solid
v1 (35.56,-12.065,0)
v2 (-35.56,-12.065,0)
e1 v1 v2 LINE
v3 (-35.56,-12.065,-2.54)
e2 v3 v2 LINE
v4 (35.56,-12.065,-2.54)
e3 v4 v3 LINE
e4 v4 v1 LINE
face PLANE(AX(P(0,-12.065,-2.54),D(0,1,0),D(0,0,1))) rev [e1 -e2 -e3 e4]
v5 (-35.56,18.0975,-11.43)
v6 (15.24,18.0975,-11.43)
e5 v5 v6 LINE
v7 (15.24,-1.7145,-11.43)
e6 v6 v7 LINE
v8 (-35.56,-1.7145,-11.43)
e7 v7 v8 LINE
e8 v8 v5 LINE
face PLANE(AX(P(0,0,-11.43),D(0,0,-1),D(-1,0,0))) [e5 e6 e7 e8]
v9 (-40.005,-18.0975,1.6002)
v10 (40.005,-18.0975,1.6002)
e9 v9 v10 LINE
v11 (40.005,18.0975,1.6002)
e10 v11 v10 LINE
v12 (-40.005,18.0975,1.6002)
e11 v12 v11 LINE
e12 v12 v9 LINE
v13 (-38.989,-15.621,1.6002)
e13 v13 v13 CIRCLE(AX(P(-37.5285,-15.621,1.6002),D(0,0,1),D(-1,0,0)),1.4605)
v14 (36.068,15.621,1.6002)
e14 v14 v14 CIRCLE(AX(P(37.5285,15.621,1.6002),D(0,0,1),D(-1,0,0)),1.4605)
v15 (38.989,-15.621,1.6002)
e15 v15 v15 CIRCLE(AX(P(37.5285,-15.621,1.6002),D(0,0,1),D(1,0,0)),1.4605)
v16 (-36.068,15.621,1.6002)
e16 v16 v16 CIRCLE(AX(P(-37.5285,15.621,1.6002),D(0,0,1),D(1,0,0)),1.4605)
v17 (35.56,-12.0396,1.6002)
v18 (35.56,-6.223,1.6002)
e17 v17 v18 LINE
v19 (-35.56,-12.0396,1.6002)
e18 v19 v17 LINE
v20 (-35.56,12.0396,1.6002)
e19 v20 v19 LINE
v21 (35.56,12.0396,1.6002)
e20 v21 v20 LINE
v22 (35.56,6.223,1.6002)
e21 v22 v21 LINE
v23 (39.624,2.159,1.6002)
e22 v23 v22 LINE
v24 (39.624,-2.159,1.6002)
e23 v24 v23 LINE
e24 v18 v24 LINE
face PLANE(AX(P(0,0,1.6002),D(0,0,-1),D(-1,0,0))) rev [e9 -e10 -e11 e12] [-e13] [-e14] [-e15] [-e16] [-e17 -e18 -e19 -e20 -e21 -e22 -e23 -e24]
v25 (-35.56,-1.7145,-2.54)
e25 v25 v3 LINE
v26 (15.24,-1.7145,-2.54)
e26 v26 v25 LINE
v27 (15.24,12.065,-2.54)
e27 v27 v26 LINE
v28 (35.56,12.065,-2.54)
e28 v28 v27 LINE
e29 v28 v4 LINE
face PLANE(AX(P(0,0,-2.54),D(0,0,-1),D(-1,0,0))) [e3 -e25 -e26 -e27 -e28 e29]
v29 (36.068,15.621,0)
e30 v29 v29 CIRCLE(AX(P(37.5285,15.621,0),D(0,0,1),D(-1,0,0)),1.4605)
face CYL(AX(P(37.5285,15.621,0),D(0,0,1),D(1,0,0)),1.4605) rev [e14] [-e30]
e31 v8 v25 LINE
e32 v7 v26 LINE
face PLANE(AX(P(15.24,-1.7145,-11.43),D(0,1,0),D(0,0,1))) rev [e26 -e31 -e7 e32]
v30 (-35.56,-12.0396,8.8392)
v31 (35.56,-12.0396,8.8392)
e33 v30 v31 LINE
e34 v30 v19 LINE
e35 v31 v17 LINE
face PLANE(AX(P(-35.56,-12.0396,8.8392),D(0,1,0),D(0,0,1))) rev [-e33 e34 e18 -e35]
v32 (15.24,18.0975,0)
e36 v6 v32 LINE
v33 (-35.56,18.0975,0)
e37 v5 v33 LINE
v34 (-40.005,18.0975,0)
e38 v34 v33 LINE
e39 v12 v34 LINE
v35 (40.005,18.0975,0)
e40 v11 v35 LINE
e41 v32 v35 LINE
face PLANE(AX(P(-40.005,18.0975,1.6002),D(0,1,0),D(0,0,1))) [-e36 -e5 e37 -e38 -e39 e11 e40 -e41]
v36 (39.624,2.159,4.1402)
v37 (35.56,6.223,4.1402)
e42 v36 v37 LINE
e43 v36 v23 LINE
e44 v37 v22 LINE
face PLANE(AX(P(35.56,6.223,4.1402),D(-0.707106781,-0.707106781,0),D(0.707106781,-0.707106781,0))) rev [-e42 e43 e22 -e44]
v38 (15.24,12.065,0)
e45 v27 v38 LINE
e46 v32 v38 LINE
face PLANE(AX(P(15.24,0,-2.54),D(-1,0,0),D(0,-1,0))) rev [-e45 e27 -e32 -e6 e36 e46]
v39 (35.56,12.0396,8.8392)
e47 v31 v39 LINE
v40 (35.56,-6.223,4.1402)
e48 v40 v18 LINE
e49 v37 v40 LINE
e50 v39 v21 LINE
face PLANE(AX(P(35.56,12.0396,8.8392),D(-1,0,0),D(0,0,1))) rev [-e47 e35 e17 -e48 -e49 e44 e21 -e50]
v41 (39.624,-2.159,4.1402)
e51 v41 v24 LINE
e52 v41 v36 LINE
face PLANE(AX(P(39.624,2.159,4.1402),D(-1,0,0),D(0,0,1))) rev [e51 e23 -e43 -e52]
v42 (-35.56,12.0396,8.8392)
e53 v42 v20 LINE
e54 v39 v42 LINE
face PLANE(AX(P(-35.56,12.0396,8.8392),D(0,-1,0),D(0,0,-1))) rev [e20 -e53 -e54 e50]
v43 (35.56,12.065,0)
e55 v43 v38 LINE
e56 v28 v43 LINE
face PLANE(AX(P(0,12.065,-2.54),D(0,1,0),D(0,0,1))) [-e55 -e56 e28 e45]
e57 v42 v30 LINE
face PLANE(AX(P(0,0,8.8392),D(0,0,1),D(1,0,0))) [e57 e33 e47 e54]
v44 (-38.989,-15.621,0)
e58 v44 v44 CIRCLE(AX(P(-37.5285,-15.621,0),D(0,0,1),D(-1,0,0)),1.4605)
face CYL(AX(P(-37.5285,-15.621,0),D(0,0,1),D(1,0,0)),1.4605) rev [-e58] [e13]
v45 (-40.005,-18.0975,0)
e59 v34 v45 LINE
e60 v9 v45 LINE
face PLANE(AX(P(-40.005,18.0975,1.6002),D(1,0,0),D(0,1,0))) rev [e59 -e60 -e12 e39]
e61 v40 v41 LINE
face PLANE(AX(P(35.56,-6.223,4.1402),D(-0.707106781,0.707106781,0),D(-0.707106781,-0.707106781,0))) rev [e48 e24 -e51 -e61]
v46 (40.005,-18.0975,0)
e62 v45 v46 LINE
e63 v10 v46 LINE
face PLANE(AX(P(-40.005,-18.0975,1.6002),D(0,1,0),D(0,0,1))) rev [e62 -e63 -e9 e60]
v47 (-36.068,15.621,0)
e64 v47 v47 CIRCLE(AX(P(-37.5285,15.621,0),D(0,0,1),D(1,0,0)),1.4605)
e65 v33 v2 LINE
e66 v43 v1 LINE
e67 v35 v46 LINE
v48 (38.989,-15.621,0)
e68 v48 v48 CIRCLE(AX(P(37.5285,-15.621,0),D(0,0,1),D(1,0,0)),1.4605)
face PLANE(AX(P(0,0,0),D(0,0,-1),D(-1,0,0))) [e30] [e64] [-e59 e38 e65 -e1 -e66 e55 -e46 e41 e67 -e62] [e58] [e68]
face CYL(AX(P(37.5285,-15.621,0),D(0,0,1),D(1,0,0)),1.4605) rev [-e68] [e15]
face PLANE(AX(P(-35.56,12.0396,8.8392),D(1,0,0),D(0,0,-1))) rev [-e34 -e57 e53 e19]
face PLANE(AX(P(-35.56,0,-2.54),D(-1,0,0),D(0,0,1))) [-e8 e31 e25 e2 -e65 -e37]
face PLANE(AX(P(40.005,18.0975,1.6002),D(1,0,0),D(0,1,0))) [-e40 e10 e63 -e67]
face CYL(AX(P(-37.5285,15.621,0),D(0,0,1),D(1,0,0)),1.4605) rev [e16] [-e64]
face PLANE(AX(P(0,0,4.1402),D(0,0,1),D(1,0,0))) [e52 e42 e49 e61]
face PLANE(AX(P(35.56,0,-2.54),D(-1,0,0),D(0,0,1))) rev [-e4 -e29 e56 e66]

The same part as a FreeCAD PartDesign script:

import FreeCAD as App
import Part
import Sketcher

V = App.Vector
Q = App.Units.Quantity


def add_polygon(sketch, points):
    """Adds a closed chain of lines whose ends are joined by coincident constraints."""
    first, n = sketch.GeometryCount, len(points)
    for a, b in zip(points, points[1:] + points[:1]):
        sketch.addGeometry(Part.LineSegment(App.Vector(*a, 0), App.Vector(*b, 0)), False)
    for i in range(n):
        sketch.addConstraint(Sketcher.Constraint("Coincident", first + i, 2, first + (i + 1) % n, 1))

doc = App.newDocument("Part")
body = doc.addObject("PartDesign::Body", "Body")

sketch1 = body.newObject("Sketcher::SketchObject", "Sketch")
sketch1.AttachmentSupport = (doc.getObject("XY_Plane"), [""])
sketch1.MapMode = "FlatFace"
add_polygon(sketch1, [(-40, 18), (-40, -18), (40, -18), (40, 18)])
sketch1.addConstraint(Sketcher.Constraint("Vertical", 0))
sketch1.addConstraint(Sketcher.Constraint("Horizontal", 1))
sketch1.addConstraint(Sketcher.Constraint("Vertical", 2))
sketch1.addConstraint(Sketcher.Constraint("Horizontal", 3))
sketch1.addConstraint(Sketcher.Constraint("Symmetric", 0, 2, 2, 2, -1, 1))
sketch1.addConstraint(Sketcher.Constraint("DistanceX", 1, 1, 1, 2, Q("3.15 in")))
sketch1.addConstraint(Sketcher.Constraint("DistanceY", 0, 2, 0, 1, Q("1.425 in")))
pad1 = body.newObject("PartDesign::Pad", "Pad")
pad1.Profile = sketch1
pad1.Length = Q("0.063 in")

sketch2 = body.newObject("Sketcher::SketchObject", "Sketch001")
sketch2.AttachmentSupport = (doc.getObject("XY_Plane"), [""])
sketch2.MapMode = "FlatFace"
sketch2.AttachmentOffset = App.Placement(V(0, 0, 0.063 * 25.4), App.Rotation())
add_polygon(sketch2, [(-36, 12), (-36, -12), (36, -12), (36, 12)])
sketch2.addConstraint(Sketcher.Constraint("Vertical", 0))
sketch2.addConstraint(Sketcher.Constraint("Horizontal", 1))
sketch2.addConstraint(Sketcher.Constraint("Vertical", 2))
sketch2.addConstraint(Sketcher.Constraint("Horizontal", 3))
sketch2.addConstraint(Sketcher.Constraint("Symmetric", 0, 2, 2, 2, -1, 1))
sketch2.addConstraint(Sketcher.Constraint("DistanceX", 1, 1, 1, 2, Q("2.8 in")))
sketch2.addConstraint(Sketcher.Constraint("DistanceY", 0, 2, 0, 1, Q("0.948 in")))
pad2 = body.newObject("PartDesign::Pad", "Pad001")
pad2.Profile = sketch2
pad2.Length = Q("0.285 in")

sketch3 = body.newObject("Sketcher::SketchObject", "Sketch002")
sketch3.AttachmentSupport = (doc.getObject("XY_Plane"), [""])
sketch3.MapMode = "FlatFace"
sketch3.AttachmentOffset = App.Placement(V(0, 0, 0.063 * 25.4), App.Rotation())
sketch3.addGeometry(Part.Circle(V(-37.5, 15.6, 0), V(0, 0, 1), 1.5), False)
sketch3.addGeometry(Part.Circle(V(37.5, 15.6, 0), V(0, 0, 1), 1.5), False)
sketch3.addGeometry(Part.Circle(V(37.5, -15.6, 0), V(0, 0, 1), 1.5), False)
sketch3.addGeometry(Part.Circle(V(-37.5, -15.6, 0), V(0, 0, 1), 1.5), False)
sketch3.addConstraint(Sketcher.Constraint("Equal", 0, 1))
sketch3.addConstraint(Sketcher.Constraint("Equal", 1, 2))
sketch3.addConstraint(Sketcher.Constraint("Equal", 2, 3))
sketch3.addConstraint(Sketcher.Constraint("Symmetric", 0, 3, 2, 3, -1, 1))
sketch3.addConstraint(Sketcher.Constraint("Symmetric", 1, 3, 3, 3, -1, 1))
sketch3.addConstraint(Sketcher.Constraint("Symmetric", 0, 3, 1, 3, -2))
sketch3.addConstraint(Sketcher.Constraint("Diameter", 0, Q("0.115 in")))
sketch3.addConstraint(Sketcher.Constraint("DistanceY", 2, 3, 1, 3, Q("1.23 in")))
sketch3.addConstraint(Sketcher.Constraint("DistanceX", 0, 3, 1, 3, Q("2.955 in")))
pocket1 = body.newObject("PartDesign::Pocket", "Pocket")
pocket1.Profile = sketch3
pocket1.Length = Q("0.063 in")

sketch4 = body.newObject("Sketcher::SketchObject", "Sketch003")
sketch4.AttachmentSupport = (doc.getObject("XY_Plane"), [""])
sketch4.MapMode = "FlatFace"
sketch4.AttachmentOffset = App.Placement(V(0, 0, 0.063 * 25.4), App.Rotation())
add_polygon(sketch4, [(39.6, 2.2), (35.6, 6.2), (35.6, -6.2), (39.6, -2.2)])
sketch4.addConstraint(Sketcher.Constraint("Vertical", 1))
sketch4.addConstraint(Sketcher.Constraint("Vertical", 3))
sketch4.addConstraint(Sketcher.Constraint("Perpendicular", 0, 2))
sketch4.addConstraint(Sketcher.Constraint("Equal", 0, 2))
sketch4.addConstraint(Sketcher.Constraint("DistanceY", 1, 2, 1, 1, Q("0.49 in")))
sketch4.addConstraint(Sketcher.Constraint("DistanceY", 3, 1, 3, 2, Q("0.17 in")))
sketch4.addConstraint(Sketcher.Constraint("DistanceX", -1, 1, 0, 2, Q("1.4 in")))
sketch4.addConstraint(Sketcher.Constraint("DistanceY", -1, 1, 0, 2, Q("0.245 in")))
pad3 = body.newObject("PartDesign::Pad", "Pad002")
pad3.Profile = sketch4
pad3.Length = Q("0.1 in")

sketch5 = body.newObject("Sketcher::SketchObject", "Sketch004")
sketch5.AttachmentSupport = (doc.getObject("XY_Plane"), [""])
sketch5.MapMode = "FlatFace"
add_polygon(sketch5, [(15, 18), (15, 12), (36, 12), (36, -12), (-36, -12), (-36, 18)])
sketch5.addConstraint(Sketcher.Constraint("Vertical", 0))
sketch5.addConstraint(Sketcher.Constraint("Horizontal", 1))
sketch5.addConstraint(Sketcher.Constraint("Vertical", 2))
sketch5.addConstraint(Sketcher.Constraint("Horizontal", 3))
sketch5.addConstraint(Sketcher.Constraint("Vertical", 4))
sketch5.addConstraint(Sketcher.Constraint("Horizontal", 5))
sketch5.addConstraint(Sketcher.Constraint("Symmetric", 1, 2, 3, 2, -1, 1))
sketch5.addConstraint(Sketcher.Constraint("DistanceX", 5, 1, 5, 2, Q("2 in")))
sketch5.addConstraint(Sketcher.Constraint("DistanceX", 1, 1, 1, 2, Q("0.8 in")))
sketch5.addConstraint(Sketcher.Constraint("DistanceY", 2, 2, 2, 1, Q("0.95 in")))
sketch5.addConstraint(Sketcher.Constraint("DistanceY", 4, 1, 4, 2, Q("1.1875 in")))
pad4 = body.newObject("PartDesign::Pad", "Pad003")
pad4.Profile = sketch5
pad4.Length = Q("0.1 in")
pad4.Reversed = True

sketch6 = body.newObject("Sketcher::SketchObject", "Sketch005")
sketch6.AttachmentSupport = (doc.getObject("XY_Plane"), [""])
sketch6.MapMode = "FlatFace"
sketch6.AttachmentOffset = App.Placement(V(0, 0, -0.1 * 25.4), App.Rotation())
add_polygon(sketch6, [(15, 18), (15, -2), (-36, -2), (-36, 18)])
sketch6.addConstraint(Sketcher.Constraint("Vertical", 0))
sketch6.addConstraint(Sketcher.Constraint("Horizontal", 1))
sketch6.addConstraint(Sketcher.Constraint("Vertical", 2))
sketch6.addConstraint(Sketcher.Constraint("Horizontal", 3))
sketch6.addConstraint(Sketcher.Constraint("DistanceX", 1, 2, 1, 1, Q("2 in")))
sketch6.addConstraint(Sketcher.Constraint("DistanceY", 0, 2, 0, 1, Q("0.78 in")))
sketch6.addConstraint(Sketcher.Constraint("DistanceX", -1, 1, 0, 2, Q("0.6 in")))
sketch6.addConstraint(Sketcher.Constraint("DistanceY", 0, 2, -1, 1, Q("0.0675 in")))
pad5 = body.newObject("PartDesign::Pad", "Pad004")
pad5.Profile = sketch6
pad5.Length = Q("0.35 in")
pad5.Reversed = True

doc.recompute()
